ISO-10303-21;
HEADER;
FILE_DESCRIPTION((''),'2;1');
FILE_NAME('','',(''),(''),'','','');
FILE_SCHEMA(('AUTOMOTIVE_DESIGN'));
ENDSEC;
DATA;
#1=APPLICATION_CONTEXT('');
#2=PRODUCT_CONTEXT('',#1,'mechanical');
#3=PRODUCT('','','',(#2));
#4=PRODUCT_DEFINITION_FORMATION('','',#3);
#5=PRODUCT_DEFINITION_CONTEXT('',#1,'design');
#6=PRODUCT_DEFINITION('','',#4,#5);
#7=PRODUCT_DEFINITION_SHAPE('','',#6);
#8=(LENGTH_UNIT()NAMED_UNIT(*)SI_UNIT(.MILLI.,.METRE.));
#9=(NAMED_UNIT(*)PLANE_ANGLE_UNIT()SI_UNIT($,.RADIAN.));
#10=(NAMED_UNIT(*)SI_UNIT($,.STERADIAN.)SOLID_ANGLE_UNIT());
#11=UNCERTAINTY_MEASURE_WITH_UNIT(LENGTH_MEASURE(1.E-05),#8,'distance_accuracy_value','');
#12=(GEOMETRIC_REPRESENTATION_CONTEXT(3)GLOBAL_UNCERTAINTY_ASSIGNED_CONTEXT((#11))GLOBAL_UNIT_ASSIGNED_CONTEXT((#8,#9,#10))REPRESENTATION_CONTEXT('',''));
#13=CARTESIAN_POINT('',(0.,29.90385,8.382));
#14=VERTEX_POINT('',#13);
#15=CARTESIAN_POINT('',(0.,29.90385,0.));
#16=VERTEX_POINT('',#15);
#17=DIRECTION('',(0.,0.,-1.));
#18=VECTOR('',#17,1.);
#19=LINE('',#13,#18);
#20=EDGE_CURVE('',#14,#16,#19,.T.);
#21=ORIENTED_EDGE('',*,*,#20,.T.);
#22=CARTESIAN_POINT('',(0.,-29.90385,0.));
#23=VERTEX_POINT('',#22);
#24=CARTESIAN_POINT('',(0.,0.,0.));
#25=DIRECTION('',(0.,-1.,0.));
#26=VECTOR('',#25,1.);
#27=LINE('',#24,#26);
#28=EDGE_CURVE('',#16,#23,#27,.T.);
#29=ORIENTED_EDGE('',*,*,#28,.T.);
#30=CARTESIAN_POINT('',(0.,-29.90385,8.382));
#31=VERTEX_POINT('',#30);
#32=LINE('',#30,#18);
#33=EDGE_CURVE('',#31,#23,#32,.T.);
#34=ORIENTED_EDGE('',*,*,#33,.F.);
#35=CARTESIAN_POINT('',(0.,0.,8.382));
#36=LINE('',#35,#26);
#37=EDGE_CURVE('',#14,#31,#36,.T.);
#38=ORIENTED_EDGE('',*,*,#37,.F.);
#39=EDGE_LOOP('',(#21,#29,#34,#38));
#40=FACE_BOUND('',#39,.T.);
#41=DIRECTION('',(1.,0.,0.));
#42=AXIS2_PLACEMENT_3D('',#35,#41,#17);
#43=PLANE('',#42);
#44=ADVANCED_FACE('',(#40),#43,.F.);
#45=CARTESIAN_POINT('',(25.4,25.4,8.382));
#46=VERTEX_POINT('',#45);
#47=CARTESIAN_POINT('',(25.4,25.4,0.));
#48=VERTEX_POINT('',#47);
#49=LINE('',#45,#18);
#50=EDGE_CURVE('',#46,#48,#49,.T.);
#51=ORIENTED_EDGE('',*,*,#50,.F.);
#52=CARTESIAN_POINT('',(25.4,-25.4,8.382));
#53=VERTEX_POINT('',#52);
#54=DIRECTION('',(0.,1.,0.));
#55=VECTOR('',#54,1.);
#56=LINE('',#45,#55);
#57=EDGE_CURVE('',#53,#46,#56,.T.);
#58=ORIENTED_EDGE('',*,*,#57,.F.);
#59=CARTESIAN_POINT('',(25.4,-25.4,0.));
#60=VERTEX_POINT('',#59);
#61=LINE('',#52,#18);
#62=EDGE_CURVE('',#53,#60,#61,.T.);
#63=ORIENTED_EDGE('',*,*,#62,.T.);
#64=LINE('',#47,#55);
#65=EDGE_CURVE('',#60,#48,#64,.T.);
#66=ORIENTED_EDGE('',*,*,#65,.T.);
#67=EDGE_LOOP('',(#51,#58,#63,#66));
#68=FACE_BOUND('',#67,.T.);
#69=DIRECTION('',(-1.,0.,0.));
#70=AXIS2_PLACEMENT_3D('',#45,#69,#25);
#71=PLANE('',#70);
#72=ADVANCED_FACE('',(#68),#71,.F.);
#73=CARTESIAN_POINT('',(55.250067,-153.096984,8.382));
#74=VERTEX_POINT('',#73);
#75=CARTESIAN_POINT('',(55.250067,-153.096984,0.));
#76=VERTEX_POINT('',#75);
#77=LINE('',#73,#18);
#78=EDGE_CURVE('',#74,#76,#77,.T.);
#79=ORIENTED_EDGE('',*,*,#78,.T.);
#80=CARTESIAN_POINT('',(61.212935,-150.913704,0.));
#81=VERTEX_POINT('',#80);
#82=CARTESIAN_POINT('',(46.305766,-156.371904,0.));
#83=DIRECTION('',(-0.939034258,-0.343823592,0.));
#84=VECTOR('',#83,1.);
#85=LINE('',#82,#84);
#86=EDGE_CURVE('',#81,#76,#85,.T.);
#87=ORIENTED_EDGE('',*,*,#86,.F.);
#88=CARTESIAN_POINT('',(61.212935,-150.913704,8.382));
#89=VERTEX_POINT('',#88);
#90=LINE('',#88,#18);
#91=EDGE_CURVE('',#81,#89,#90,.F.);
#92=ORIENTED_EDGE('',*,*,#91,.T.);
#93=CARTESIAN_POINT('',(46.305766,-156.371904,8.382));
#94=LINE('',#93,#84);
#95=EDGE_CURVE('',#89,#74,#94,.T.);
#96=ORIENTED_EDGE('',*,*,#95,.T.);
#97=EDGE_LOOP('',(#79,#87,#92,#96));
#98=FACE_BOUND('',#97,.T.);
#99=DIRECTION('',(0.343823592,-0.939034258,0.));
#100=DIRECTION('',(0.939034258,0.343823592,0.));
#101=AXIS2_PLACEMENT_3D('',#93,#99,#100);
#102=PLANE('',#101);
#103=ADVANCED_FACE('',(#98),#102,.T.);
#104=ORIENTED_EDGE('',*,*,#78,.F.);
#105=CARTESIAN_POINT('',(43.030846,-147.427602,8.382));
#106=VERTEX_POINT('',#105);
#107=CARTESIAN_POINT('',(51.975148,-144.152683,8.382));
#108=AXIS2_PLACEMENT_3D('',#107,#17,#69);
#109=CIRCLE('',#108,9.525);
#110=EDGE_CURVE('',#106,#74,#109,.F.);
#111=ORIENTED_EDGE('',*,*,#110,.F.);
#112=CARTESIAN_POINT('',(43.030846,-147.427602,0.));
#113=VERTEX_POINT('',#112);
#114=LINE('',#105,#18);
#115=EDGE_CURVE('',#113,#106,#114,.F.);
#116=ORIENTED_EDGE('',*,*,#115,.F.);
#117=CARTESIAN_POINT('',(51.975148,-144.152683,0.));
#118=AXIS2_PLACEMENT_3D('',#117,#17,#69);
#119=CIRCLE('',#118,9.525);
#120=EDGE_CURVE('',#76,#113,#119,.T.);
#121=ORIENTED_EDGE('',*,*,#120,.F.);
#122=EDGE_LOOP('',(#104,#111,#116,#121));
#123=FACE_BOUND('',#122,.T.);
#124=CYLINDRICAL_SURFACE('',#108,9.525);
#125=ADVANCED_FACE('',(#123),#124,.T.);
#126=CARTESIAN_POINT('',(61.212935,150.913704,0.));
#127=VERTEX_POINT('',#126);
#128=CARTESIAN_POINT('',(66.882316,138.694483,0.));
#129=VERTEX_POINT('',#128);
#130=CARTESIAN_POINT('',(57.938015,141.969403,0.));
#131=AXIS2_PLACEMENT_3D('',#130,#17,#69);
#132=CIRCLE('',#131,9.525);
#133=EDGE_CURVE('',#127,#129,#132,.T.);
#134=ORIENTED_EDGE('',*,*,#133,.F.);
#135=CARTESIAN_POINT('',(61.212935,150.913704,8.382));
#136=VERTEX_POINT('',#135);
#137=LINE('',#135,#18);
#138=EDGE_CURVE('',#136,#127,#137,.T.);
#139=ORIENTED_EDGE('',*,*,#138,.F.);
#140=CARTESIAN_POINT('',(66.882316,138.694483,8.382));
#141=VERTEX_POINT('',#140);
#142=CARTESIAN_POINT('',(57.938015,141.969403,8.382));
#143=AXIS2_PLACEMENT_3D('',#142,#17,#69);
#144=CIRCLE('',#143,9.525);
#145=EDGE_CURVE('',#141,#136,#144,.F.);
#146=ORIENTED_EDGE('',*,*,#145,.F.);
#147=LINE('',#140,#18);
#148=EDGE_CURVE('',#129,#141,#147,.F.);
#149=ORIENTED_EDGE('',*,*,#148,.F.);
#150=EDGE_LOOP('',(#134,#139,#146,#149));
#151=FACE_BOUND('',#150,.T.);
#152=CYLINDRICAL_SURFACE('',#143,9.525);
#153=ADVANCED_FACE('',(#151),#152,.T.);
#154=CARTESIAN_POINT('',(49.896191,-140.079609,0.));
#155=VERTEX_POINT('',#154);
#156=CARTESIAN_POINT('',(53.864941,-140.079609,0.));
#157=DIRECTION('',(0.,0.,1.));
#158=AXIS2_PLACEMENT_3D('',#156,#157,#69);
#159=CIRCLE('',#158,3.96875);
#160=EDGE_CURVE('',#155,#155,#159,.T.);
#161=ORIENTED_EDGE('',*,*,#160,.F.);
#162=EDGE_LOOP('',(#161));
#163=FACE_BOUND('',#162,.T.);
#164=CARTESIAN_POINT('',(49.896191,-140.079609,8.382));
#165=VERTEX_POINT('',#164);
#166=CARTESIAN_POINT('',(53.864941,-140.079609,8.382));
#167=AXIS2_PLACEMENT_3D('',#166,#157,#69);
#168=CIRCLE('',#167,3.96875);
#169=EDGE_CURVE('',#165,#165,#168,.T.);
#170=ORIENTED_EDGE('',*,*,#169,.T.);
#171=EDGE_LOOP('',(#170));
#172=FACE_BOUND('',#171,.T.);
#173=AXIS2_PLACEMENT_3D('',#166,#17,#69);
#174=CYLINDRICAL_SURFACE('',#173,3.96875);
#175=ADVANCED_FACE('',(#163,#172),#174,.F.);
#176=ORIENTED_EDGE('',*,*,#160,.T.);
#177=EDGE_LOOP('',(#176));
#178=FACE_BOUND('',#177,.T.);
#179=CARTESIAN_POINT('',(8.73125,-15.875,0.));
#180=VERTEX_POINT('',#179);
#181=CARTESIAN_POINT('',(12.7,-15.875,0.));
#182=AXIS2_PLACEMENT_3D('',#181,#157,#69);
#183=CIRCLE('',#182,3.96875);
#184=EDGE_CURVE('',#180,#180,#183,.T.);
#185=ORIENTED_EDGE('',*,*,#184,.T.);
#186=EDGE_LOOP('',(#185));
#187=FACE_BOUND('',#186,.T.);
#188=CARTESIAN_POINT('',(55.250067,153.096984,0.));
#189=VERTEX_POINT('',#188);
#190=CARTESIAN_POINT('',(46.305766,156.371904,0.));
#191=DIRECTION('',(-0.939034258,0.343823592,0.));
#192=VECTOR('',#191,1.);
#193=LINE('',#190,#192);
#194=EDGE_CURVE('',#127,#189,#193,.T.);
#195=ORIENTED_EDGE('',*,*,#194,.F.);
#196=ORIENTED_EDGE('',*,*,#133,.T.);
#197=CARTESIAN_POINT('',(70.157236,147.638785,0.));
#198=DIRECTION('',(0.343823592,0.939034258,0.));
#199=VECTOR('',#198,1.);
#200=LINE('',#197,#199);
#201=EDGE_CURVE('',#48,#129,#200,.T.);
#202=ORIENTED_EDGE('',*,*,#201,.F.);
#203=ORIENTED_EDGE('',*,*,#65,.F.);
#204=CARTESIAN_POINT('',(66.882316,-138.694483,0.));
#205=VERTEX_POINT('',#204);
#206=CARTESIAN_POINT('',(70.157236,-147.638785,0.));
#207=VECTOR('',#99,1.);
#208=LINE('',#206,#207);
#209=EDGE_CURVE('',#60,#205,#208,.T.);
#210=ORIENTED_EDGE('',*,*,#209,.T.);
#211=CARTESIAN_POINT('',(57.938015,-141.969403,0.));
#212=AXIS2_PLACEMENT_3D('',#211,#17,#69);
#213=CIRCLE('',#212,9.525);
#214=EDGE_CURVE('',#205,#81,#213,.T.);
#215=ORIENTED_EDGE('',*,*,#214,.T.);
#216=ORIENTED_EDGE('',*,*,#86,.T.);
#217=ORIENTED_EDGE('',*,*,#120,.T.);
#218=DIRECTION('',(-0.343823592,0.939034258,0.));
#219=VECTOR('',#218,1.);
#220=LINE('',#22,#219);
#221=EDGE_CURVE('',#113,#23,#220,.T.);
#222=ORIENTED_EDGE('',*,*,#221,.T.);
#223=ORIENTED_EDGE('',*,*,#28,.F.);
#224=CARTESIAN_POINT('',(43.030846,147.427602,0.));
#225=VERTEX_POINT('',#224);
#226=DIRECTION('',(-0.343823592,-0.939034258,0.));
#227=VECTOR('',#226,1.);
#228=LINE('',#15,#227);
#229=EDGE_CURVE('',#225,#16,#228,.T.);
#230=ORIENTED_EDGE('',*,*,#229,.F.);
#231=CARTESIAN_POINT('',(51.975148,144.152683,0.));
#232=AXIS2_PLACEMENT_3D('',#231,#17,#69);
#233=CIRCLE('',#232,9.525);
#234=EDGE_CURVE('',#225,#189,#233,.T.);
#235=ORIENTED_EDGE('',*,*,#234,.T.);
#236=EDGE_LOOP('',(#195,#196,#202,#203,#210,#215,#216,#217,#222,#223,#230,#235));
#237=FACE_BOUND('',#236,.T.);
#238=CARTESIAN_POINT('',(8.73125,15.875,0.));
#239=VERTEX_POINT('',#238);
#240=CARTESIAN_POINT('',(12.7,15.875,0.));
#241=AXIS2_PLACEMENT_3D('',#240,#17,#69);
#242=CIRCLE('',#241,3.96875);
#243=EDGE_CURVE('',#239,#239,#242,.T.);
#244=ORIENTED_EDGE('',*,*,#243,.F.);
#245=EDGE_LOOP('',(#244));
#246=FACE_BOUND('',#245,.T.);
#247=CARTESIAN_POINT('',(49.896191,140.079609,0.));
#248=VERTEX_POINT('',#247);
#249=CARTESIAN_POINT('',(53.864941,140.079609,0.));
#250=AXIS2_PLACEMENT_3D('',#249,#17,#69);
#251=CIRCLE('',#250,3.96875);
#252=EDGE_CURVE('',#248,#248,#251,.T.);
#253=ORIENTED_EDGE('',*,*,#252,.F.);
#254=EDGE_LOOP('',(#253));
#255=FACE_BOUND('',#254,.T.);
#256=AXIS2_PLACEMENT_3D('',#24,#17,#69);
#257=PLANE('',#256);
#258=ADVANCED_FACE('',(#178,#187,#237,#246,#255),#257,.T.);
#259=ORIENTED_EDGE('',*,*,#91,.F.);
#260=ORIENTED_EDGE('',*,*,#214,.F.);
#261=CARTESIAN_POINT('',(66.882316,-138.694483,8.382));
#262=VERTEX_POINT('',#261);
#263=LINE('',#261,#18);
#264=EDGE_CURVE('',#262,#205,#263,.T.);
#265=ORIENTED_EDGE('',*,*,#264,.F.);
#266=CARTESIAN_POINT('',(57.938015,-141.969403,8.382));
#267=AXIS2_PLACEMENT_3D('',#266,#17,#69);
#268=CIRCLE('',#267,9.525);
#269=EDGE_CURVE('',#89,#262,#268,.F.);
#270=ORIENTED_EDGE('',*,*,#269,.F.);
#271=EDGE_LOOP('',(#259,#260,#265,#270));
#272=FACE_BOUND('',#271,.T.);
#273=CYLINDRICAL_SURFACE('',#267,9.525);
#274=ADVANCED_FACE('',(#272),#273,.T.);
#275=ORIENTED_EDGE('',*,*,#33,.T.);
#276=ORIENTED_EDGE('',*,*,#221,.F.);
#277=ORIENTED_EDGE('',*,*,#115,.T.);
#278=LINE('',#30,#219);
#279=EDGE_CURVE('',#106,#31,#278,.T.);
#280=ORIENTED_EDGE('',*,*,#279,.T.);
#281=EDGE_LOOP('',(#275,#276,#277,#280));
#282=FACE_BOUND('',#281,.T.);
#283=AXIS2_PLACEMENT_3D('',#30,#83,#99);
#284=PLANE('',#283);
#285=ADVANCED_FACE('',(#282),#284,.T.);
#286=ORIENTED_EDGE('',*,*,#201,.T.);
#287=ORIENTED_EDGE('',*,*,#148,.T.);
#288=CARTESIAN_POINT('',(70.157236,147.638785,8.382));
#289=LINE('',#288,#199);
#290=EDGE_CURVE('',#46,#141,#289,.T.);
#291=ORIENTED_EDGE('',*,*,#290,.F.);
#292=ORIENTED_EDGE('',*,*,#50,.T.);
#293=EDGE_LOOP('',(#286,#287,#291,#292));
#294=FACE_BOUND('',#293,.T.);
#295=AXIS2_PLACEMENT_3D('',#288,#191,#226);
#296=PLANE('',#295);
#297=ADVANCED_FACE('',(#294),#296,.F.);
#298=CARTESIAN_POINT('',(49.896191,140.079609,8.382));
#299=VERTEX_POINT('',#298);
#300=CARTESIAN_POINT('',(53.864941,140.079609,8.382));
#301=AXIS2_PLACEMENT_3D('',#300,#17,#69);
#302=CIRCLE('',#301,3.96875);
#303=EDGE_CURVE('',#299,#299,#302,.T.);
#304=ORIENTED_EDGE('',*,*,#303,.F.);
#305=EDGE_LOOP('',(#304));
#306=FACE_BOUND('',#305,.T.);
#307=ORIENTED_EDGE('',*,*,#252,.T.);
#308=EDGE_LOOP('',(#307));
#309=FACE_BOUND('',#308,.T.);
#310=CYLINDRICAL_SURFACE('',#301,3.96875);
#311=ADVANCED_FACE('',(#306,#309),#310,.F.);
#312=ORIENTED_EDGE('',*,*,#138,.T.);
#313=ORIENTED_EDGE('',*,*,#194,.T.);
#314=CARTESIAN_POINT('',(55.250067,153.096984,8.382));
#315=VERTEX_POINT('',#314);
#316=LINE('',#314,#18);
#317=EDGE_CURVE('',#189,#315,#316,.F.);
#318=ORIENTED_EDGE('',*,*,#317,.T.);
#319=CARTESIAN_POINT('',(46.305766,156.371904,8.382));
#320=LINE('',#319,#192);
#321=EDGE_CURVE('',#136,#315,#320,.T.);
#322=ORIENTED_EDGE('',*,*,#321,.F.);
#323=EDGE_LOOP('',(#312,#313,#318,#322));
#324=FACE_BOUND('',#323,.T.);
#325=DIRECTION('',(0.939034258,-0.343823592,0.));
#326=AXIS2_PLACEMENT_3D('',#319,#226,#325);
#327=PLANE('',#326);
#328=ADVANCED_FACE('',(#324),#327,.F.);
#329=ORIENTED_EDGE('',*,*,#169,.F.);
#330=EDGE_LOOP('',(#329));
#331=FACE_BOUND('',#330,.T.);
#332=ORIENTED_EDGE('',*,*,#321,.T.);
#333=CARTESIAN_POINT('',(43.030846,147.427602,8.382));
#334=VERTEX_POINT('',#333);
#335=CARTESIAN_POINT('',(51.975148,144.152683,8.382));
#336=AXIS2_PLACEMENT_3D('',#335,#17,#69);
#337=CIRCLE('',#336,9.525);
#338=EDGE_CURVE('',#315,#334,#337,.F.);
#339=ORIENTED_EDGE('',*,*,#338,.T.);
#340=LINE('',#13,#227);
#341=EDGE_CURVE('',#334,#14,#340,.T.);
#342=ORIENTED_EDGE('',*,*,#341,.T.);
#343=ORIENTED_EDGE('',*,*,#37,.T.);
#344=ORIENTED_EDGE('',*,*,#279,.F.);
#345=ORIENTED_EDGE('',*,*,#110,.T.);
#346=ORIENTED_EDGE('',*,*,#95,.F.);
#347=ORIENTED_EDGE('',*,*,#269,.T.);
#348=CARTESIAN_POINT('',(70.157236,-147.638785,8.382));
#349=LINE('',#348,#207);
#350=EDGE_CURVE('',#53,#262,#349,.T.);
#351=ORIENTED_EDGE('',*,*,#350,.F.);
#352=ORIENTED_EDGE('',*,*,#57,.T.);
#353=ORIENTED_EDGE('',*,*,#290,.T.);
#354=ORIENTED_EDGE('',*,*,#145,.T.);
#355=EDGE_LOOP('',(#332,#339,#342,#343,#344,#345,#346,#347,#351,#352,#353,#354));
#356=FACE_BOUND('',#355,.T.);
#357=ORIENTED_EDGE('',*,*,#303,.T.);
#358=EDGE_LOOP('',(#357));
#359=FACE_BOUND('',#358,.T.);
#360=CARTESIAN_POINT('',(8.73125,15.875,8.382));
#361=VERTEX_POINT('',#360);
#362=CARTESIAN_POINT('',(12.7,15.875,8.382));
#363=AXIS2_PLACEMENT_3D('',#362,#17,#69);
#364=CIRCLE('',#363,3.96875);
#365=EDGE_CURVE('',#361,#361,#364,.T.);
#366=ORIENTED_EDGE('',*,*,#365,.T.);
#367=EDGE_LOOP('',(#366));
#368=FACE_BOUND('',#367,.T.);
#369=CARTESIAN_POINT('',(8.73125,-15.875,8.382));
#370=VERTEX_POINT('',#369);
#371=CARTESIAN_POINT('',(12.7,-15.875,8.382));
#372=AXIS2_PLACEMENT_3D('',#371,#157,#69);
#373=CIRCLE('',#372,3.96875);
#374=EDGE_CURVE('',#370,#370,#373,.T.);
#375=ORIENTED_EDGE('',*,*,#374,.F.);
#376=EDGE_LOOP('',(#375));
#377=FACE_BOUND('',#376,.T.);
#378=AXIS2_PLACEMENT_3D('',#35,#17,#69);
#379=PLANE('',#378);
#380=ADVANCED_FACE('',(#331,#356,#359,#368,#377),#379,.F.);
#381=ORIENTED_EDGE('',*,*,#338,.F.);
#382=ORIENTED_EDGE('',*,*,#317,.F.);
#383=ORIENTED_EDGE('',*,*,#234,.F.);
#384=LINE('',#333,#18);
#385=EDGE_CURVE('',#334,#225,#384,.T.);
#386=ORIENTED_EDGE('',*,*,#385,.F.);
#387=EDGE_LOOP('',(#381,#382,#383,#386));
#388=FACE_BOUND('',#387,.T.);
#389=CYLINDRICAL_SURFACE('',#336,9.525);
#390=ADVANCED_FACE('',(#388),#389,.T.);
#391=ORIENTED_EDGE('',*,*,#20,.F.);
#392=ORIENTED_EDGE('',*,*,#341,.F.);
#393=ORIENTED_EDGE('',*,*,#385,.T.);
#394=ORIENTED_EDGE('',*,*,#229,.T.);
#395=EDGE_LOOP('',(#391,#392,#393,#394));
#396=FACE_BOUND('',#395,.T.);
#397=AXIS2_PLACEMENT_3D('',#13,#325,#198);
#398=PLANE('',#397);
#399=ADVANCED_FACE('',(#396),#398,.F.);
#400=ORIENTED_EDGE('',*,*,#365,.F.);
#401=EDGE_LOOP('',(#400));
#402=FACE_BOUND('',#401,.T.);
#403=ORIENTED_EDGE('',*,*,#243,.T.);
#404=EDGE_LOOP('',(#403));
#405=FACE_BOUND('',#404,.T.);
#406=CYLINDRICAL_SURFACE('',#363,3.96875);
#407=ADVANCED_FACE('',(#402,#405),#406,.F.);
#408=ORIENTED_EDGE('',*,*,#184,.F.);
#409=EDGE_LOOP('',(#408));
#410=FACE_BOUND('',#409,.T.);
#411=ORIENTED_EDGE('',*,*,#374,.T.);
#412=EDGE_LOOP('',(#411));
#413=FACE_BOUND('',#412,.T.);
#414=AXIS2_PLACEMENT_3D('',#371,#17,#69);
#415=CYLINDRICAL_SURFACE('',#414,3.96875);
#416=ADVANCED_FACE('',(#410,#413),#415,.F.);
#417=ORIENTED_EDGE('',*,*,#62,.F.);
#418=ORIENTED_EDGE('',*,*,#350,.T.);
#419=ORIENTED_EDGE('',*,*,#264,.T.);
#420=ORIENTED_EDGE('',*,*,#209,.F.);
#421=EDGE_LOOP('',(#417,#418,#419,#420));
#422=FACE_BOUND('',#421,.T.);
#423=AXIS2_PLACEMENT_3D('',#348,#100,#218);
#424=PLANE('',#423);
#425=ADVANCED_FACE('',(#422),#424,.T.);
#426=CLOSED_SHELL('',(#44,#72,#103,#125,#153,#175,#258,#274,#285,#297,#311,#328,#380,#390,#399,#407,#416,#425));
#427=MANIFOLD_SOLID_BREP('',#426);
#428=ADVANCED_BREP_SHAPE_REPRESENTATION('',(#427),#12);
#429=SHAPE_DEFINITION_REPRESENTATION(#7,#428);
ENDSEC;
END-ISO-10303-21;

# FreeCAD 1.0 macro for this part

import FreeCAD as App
import Part
import Sketcher

V = App.Vector
Q = App.Units.Quantity


def edges_at(feature, points):
    """Names of the edges that pass closest to the given points."""
    edges = feature.Shape.Edges
    near = lambda p: min(range(len(edges)), key=lambda i: edges[i].distToShape(Part.Vertex(*p))[0])
    return sorted({f"Edge{near(p) + 1}" for p in points})


def add_polygon(sketch, points):
    """Adds a closed chain of lines whose ends are joined by coincident constraints."""
    first, n = sketch.GeometryCount, len(points)
    for a, b in zip(points, points[1:] + points[:1]):
        sketch.addGeometry(Part.LineSegment(App.Vector(*a, 0), App.Vector(*b, 0)), False)
    for i in range(n):
        sketch.addConstraint(Sketcher.Constraint("Coincident", first + i, 2, first + (i + 1) % n, 1))

doc = App.newDocument("Part")
body = doc.addObject("PartDesign::Body", "Body")

# Sketch on XY plane
sketch1 = doc.addObject("Sketcher::SketchObject", "Sketch")
body.addObject(sketch1)
sketch1.AttachmentSupport = (doc.XY_Plane, [""])
sketch1.MapMode = "FlatFace"
add_polygon(sketch1, [(0, 30), (0, 0), (25, 0), (25, 25), (70, 148), (46, 156)])  # lines 0-5
sketch1.addConstraint([
    Sketcher.Constraint("Vertical", 0),
    Sketcher.Constraint("Horizontal", 1),
    Sketcher.Constraint("Vertical", 2),
    Sketcher.Constraint("Coincident", 0, 2, -1, 1),
    Sketcher.Constraint("Perpendicular", 3, 4),
    Sketcher.Constraint("Perpendicular", 4, 5),
    Sketcher.Constraint("Equal", 1, 2),
    Sketcher.Constraint("DistanceX", 1, 1, 1, 2, Q("1 in")),
    Sketcher.Constraint("Distance", 4, Q("1 in")),
    Sketcher.Constraint("Angle", 3, Q("69.89 deg")),
    Sketcher.Constraint("Distance", 3, Q("5.125 in")),
])
pad1 = doc.addObject("PartDesign::Pad", "Pad")
body.addObject(pad1)
pad1.Profile = sketch1
pad1.Length = Q("0.33 in")

# Sketch on XY plane
sketch2 = doc.addObject("Sketcher::SketchObject", "Sketch001")
body.addObject(sketch2)
sketch2.AttachmentSupport = (doc.XY_Plane, [""])
sketch2.MapMode = "FlatFace"
sketch2.addGeometry([
    Part.Circle(V(53.9, 140.1, 0), V(0, 0, 1), 4),
    Part.Circle(V(12.7, 15.9, 0), V(0, 0, 1), 4),
], False)
sketch2.addConstraint([
    Sketcher.Constraint("Equal", 0, 1),
    Sketcher.Constraint("Diameter", 0, Q("0.3125 in")),
    Sketcher.Constraint("DistanceX", -1, 1, 1, 3, Q("0.5 in")),
    Sketcher.Constraint("DistanceY", -1, 1, 1, 3, Q("0.625 in")),
    Sketcher.Constraint("DistanceX", -1, 1, 0, 3, Q("53.864941 mm")),
    Sketcher.Constraint("DistanceY", -1, 1, 0, 3, Q("140.079609 mm")),
])
pocket1 = doc.addObject("PartDesign::Pocket", "Pocket")
body.addObject(pocket1)
pocket1.Profile = sketch2
pocket1.Type = "ThroughAll"
pocket1.Reversed = True
doc.recompute()

fillet = doc.addObject("PartDesign::Fillet", "Fillet")
body.addObject(fillet)
fillet.Base = (pocket1, edges_at(pocket1, [(46.306, 156.372, 4.191), (70.157, 147.639, 4.191)]))
fillet.Radius = Q("0.375 in")
doc.recompute()

mirrored = doc.addObject("PartDesign::Mirrored", "Mirrored")
body.addObject(mirrored)
mirrored.Originals = [pad1, pocket1]
mirrored.MirrorPlane = (doc.XZ_Plane, [""])
body.Tip = mirrored
doc.recompute()

fillet2 = doc.addObject("PartDesign::Fillet", "Fillet001")
body.addObject(fillet2)
fillet2.Base = (mirrored, edges_at(mirrored, [(46.306, -156.372, 4.191), (70.157, -147.639, 4.191)]))
fillet2.Radius = Q("0.375 in")

doc.recompute()
